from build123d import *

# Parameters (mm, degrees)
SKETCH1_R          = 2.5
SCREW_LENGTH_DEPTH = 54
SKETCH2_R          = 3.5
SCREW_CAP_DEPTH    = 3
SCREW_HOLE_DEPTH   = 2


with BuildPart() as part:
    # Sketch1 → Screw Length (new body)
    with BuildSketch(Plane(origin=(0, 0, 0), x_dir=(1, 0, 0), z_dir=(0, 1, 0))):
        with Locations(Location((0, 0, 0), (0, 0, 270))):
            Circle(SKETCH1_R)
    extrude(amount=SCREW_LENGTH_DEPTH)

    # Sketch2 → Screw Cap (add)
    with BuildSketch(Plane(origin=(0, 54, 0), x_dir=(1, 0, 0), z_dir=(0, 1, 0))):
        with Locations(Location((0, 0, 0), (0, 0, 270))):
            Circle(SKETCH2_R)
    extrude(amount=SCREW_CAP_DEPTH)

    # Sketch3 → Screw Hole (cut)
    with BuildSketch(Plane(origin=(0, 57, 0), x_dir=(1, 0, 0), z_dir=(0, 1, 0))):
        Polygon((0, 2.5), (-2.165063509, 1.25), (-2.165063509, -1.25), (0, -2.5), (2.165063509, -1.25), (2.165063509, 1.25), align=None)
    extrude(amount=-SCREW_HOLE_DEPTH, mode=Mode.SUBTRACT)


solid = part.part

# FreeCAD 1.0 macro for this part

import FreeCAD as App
import Part
import Sketcher
Q = App.Units.Quantity


def add_polygon(sketch, points):
    """Adds a closed chain of lines whose ends are joined by coincident constraints."""
    first, n = sketch.GeometryCount, len(points)
    for a, b in zip(points, points[1:] + points[:1]):
        sketch.addGeometry(Part.LineSegment(App.Vector(*a, 0), App.Vector(*b, 0)), False)
    for i in range(n):
        sketch.addConstraint(Sketcher.Constraint("Coincident", first + i, 2, first + (i + 1) % n, 1))

doc = App.newDocument("Part")
body = doc.addObject("PartDesign::Body", "Body")

# Sketch on XZ plane
sketch1 = body.newObject("Sketcher::SketchObject", "Sketch")
sketch1.AttachmentSupport = (doc.getObject("XZ_Plane"), [""])
sketch1.MapMode = "FlatFace"
sketch1.addGeometry(Part.Circle(App.Vector(0, 0, 0), App.Vector(0, 0, 1), 2.5), False)
sketch1.addConstraint([
    Sketcher.Constraint("Coincident", 0, 3, -1, 1),
    Sketcher.Constraint("Diameter", 0, 5.0),
])
pad1 = body.newObject("PartDesign::Pad", "Pad")
pad1.Profile = sketch1
pad1.Length = 54
pad1.Reversed = True

# Sketch on XZ plane
sketch2 = body.newObject("Sketcher::SketchObject", "Sketch001")
sketch2.AttachmentSupport = (doc.getObject("XZ_Plane"), [""])
sketch2.MapMode = "FlatFace"
sketch2.AttachmentOffset = App.Placement(App.Vector(0, 0, -54), App.Rotation())
sketch2.addGeometry(Part.Circle(App.Vector(0, 0, 0), App.Vector(0, 0, 1), 3.5), False)
sketch2.addConstraint([
    Sketcher.Constraint("Coincident", 0, 3, -1, 1),
    Sketcher.Constraint("Diameter", 0, 7.0),
])
pad2 = body.newObject("PartDesign::Pad", "Pad001")
pad2.Profile = sketch2
pad2.Length = 3
pad2.Reversed = True

# Sketch on XZ plane
sketch3 = body.newObject("Sketcher::SketchObject", "Sketch002")
sketch3.AttachmentSupport = (doc.getObject("XZ_Plane"), [""])
sketch3.MapMode = "FlatFace"
sketch3.AttachmentOffset = App.Placement(App.Vector(0, 0, -57), App.Rotation())
add_polygon(sketch3, [(0, -2.5), (-2.2, -1.2), (-2.2, 1.2), (0, 2.5), (2.2, 1.2), (2.2, -1.2)])  # lines 0-5
sketch3.addConstraint([
    Sketcher.Constraint("Vertical", 1),
    Sketcher.Constraint("Vertical", 4),
    Sketcher.Constraint("Symmetric", 0, 2, 3, 2, -1, 1),
    Sketcher.Constraint("Symmetric", 2, 2, 5, 2, -1, 1),
    Sketcher.Constraint("PointOnObject", 2, 2, -2),
    Sketcher.Constraint("Parallel", 2, 5),
    Sketcher.Constraint("Horizontal", 1, 2, 3, 2),
    Sketcher.Constraint("Angle", 0, Q("150 deg")),
    Sketcher.Constraint("DistanceY", 1, 1, 1, 2, 2.5),
    Sketcher.Constraint("DistanceY", 5, 2, 2, 2, 5.0),
])
pocket1 = body.newObject("PartDesign::Pocket", "Pocket")
pocket1.Profile = sketch3
pocket1.Length = 2
pocket1.Reversed = True

doc.recompute()
